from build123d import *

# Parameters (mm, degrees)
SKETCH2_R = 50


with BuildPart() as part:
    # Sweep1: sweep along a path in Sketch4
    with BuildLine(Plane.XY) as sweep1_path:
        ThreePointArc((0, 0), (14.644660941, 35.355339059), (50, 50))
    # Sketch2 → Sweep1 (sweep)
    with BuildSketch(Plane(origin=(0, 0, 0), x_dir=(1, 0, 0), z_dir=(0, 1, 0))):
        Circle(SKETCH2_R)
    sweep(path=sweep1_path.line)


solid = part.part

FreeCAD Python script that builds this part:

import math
import FreeCAD as App
import Part
import Sketcher
Q = App.Units.Quantity

doc = App.newDocument("Part")
body = doc.addObject("PartDesign::Body", "Body")

# Sketch on XZ plane
sketch1 = doc.addObject("Sketcher::SketchObject", "Sketch")
body.addObject(sketch1)
sketch1.AttachmentSupport = (doc.XZ_Plane, [""])
sketch1.MapMode = "FlatFace"
sketch1.addGeometry(Part.Circle(App.Vector(0, 0, 0), App.Vector(0, 0, 1), 50), False)
sketch1.addConstraint([
    Sketcher.Constraint("Coincident", 0, 3, -1, 1),
    Sketcher.Constraint("Diameter", 0, Q("100 mm")),
])

# Sketch on XY plane
sketch2 = doc.addObject("Sketcher::SketchObject", "Sketch001")
body.addObject(sketch2)
sketch2.AttachmentSupport = (doc.XY_Plane, [""])
sketch2.MapMode = "FlatFace"
sketch2.addGeometry(Part.ArcOfCircle(Part.Circle(App.Vector(50, 0, 0), App.Vector(0, 0, 1), 50), math.radians(90), math.radians(180)), False)
sketch2.addConstraint([
    Sketcher.Constraint("Coincident", 0, 2, -1, 1),
    Sketcher.Constraint("PointOnObject", 0, 3, -1),
    Sketcher.Constraint("Radius", 0, Q("50 mm")),
    Sketcher.Constraint("DistanceX", -1, 1, 0, 1, Q("50 mm")),
])
doc.recompute()

additivepipe = doc.addObject("PartDesign::AdditivePipe", "AdditivePipe")
body.addObject(additivepipe)
additivepipe.Profile = sketch1
additivepipe.Spine = (sketch2, ["Edge1"])

doc.recompute()
